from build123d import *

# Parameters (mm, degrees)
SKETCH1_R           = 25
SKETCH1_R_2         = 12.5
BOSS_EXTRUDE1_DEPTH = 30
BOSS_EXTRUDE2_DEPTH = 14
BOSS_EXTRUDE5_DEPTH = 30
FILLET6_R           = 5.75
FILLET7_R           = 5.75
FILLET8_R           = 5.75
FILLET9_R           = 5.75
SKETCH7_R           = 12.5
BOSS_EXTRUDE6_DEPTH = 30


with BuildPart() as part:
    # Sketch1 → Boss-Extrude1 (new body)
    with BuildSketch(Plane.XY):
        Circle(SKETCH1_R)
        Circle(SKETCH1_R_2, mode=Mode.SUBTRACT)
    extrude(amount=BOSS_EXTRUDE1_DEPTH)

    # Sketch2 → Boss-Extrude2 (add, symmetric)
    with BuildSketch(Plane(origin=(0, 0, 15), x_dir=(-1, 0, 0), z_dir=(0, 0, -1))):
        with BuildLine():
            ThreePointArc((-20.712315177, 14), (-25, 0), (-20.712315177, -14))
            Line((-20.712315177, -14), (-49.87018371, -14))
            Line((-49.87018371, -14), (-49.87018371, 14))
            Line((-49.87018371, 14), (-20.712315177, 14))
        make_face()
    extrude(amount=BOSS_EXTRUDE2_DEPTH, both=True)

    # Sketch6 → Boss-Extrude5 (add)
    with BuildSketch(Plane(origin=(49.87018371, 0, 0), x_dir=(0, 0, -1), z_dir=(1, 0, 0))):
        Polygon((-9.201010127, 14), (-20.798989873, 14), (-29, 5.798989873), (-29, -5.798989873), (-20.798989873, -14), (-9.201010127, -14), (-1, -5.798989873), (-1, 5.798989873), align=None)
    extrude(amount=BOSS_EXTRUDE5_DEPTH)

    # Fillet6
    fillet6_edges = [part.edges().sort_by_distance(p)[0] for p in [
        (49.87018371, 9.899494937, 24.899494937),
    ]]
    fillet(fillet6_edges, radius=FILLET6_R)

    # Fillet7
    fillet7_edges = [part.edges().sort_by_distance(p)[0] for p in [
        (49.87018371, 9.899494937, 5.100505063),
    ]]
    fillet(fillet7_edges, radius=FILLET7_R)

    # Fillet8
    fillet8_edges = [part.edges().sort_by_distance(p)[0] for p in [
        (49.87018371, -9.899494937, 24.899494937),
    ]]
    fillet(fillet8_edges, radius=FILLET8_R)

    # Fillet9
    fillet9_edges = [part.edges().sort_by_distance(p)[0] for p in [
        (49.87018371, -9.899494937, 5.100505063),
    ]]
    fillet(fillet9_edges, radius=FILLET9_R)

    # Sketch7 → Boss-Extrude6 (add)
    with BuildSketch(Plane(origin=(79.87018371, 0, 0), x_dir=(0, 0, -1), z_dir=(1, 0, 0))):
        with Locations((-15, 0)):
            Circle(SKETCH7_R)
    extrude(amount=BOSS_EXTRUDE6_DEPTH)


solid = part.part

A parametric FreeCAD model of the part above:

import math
import FreeCAD as App
import Part
import Sketcher

V = App.Vector
Q = App.Units.Quantity


def edges_at(feature, points):
    """Names of the edges that pass closest to the given points."""
    edges = feature.Shape.Edges
    near = lambda p: min(range(len(edges)), key=lambda i: edges[i].distToShape(Part.Vertex(*p))[0])
    return sorted({f"Edge{near(p) + 1}" for p in points})

doc = App.newDocument("Part")
params = doc.addObject("Spreadsheet::Sheet", "Params")
for row, (alias, value) in enumerate([
    ("sketch1_diameter", "50 mm"),
    ("sketch1_diameter2", "25 mm"),
    ("pad1_length", "30 mm"),
    ("sketch2_radius", "25 mm"),
    ("sketch2_height", "28 mm"),
    ("pad2_length", "28 mm"),
    ("pad3_length", "30 mm"),
    ("fillet_radius", "5.75 mm"),
    ("fillet2_radius", "5.75 mm"),
    ("fillet3_radius", "5.75 mm"),
    ("fillet4_radius", "5.75 mm"),
    ("sketch4_diameter", "25 mm"),
    ("pad4_length", "30 mm"),
], start=1):
    params.set(f"A{row}", alias)
    params.set(f"B{row}", "=" + value)
    params.setAlias(f"B{row}", alias)

body = doc.addObject("PartDesign::Body", "Body")

# Sketch on XY plane
sketch1 = body.newObject("Sketcher::SketchObject", "Sketch")
sketch1.AttachmentSupport = (doc.getObject("XY_Plane"), [""])
sketch1.MapMode = "FlatFace"
sketch1.addGeometry([
    Part.Circle(V(0, 0, 0), V(0, 0, 1), 25),
    Part.Circle(V(0, 0, 0), V(0, 0, 1), 12),
], False)
sketch1.addConstraint([
    Sketcher.Constraint("Coincident", 0, 3, -1, 1),
    Sketcher.Constraint("Coincident", 1, 3, -1, 1),
    Sketcher.Constraint("Diameter", 0, Q("50 mm")),
    Sketcher.Constraint("Diameter", 1, Q("25 mm")),
])
sketch1.setExpression("Constraints[2]", "Params.sketch1_diameter")
sketch1.setExpression("Constraints[3]", "Params.sketch1_diameter2")
pad1 = body.newObject("PartDesign::Pad", "Pad")
pad1.Profile = sketch1
pad1.setExpression("Length", "Params.pad1_length")

# Sketch on XY plane
sketch2 = body.newObject("Sketcher::SketchObject", "Sketch001")
sketch2.AttachmentSupport = (doc.getObject("XY_Plane"), [""])
sketch2.MapMode = "FlatFace"
sketch2.AttachmentOffset = App.Placement(V(0, 0, 15), App.Rotation())
sketch2.addGeometry([
    Part.ArcOfCircle(Part.Circle(V(0, 0, 0), V(0, 0, 1), 25), math.radians(-34), math.radians(34)),
    Part.LineSegment(V(21, 14, 0), V(50, 14, 0)),
    Part.LineSegment(V(50, 14, 0), V(50, -14, 0)),
    Part.LineSegment(V(50, -14, 0), V(21, -14, 0)),
], False)
sketch2.addConstraint([
    Sketcher.Constraint("Coincident", 0, 2, 1, 1),
    Sketcher.Constraint("Coincident", 1, 2, 2, 1),
    Sketcher.Constraint("Coincident", 2, 2, 3, 1),
    Sketcher.Constraint("Coincident", 3, 2, 0, 1),
    Sketcher.Constraint("Horizontal", 1),
    Sketcher.Constraint("Vertical", 2),
    Sketcher.Constraint("Horizontal", 3),
    Sketcher.Constraint("Coincident", 0, 3, -1, 1),
    Sketcher.Constraint("Vertical", 0, 2, 3, 2),
    Sketcher.Constraint("Radius", 0, Q("25 mm")),
    Sketcher.Constraint("DistanceY", 2, 2, 2, 1, Q("28 mm")),
    Sketcher.Constraint("DistanceX", 1, 1, 1, 2, Q("29.157869 mm")),
])
sketch2.setExpression("Constraints[9]", "Params.sketch2_radius")
sketch2.setExpression("Constraints[10]", "Params.sketch2_height")
pad2 = body.newObject("PartDesign::Pad", "Pad001")
pad2.Profile = sketch2
pad2.setExpression("Length", "Params.pad2_length")
pad2.Midplane = True

# Sketch on YZ plane
sketch3 = body.newObject("Sketcher::SketchObject", "Sketch002")
sketch3.AttachmentSupport = (doc.getObject("YZ_Plane"), [""])
sketch3.MapMode = "FlatFace"
sketch3.AttachmentOffset = App.Placement(V(0, 0, 49.870184), App.Rotation())
sketch3.addGeometry([
    Part.LineSegment(V(14, 9, 0), V(14, 21, 0)),  # 0
    Part.LineSegment(V(14, 21, 0), V(6, 29, 0)),  # 1
    Part.LineSegment(V(6, 29, 0), V(-6, 29, 0)),  # 2
    Part.LineSegment(V(-6, 29, 0), V(-14, 21, 0)),  # 3
    Part.LineSegment(V(-14, 21, 0), V(-14, 9, 0)),  # 4
    Part.LineSegment(V(-14, 9, 0), V(-6, 1, 0)),  # 5
    Part.LineSegment(V(-6, 1, 0), V(6, 1, 0)),  # 6
    Part.LineSegment(V(6, 1, 0), V(14, 9, 0)),  # 7
], False)
sketch3.addConstraint([
    Sketcher.Constraint("Coincident", 0, 2, 1, 1),
    Sketcher.Constraint("Coincident", 1, 2, 2, 1),
    Sketcher.Constraint("Coincident", 2, 2, 3, 1),
    Sketcher.Constraint("Coincident", 3, 2, 4, 1),
    Sketcher.Constraint("Coincident", 4, 2, 5, 1),
    Sketcher.Constraint("Coincident", 5, 2, 6, 1),
    Sketcher.Constraint("Coincident", 6, 2, 7, 1),
    Sketcher.Constraint("Coincident", 7, 2, 0, 1),
    Sketcher.Constraint("Vertical", 0),
    Sketcher.Constraint("Horizontal", 2),
    Sketcher.Constraint("Vertical", 4),
    Sketcher.Constraint("Horizontal", 6),
    Sketcher.Constraint("Symmetric", 0, 2, 3, 2, -2),
    Sketcher.Constraint("Perpendicular", 1, 3),
    Sketcher.Constraint("Perpendicular", 3, 5),
    Sketcher.Constraint("Perpendicular", 5, 7),
    Sketcher.Constraint("Horizontal", 4, 2, 7, 2),
    Sketcher.Constraint("Vertical", 2, 2, 5, 2),
    Sketcher.Constraint("Vertical", 1, 2, 6, 2),
    Sketcher.Constraint("Equal", 6, 0),
    Sketcher.Constraint("DistanceX", -1, 1, 0, 2, Q("14 mm")),
    Sketcher.Constraint("DistanceY", -1, 1, 1, 2, Q("29 mm")),
    Sketcher.Constraint("DistanceX", 2, 2, 2, 1, Q("11.59798 mm")),
])
pad3 = body.newObject("PartDesign::Pad", "Pad002")
pad3.Profile = sketch3
pad3.setExpression("Length", "Params.pad3_length")
doc.recompute()

fillet = body.newObject("PartDesign::Fillet", "Fillet")
fillet.Base = (pad3, edges_at(pad3, [(49.87, 9.899, 24.899)]))
fillet.setExpression("Radius", "Params.fillet_radius")
doc.recompute()

fillet2 = body.newObject("PartDesign::Fillet", "Fillet001")
fillet2.Base = (fillet, edges_at(fillet, [(49.87, 9.899, 5.101)]))
fillet2.setExpression("Radius", "Params.fillet2_radius")
doc.recompute()

fillet3 = body.newObject("PartDesign::Fillet", "Fillet002")
fillet3.Base = (fillet2, edges_at(fillet2, [(49.87, -9.899, 24.899)]))
fillet3.setExpression("Radius", "Params.fillet3_radius")
doc.recompute()

fillet4 = body.newObject("PartDesign::Fillet", "Fillet003")
fillet4.Base = (fillet3, edges_at(fillet3, [(49.87, -9.899, 5.101)]))
fillet4.setExpression("Radius", "Params.fillet4_radius")

# Sketch on YZ plane
sketch4 = body.newObject("Sketcher::SketchObject", "Sketch003")
sketch4.AttachmentSupport = (doc.getObject("YZ_Plane"), [""])
sketch4.MapMode = "FlatFace"
sketch4.AttachmentOffset = App.Placement(V(0, 0, 79.870184), App.Rotation())
sketch4.addGeometry(Part.Circle(V(0, 15, 0), V(0, 0, 1), 12), False)
sketch4.addConstraint([
    Sketcher.Constraint("PointOnObject", 0, 3, -2),
    Sketcher.Constraint("Diameter", 0, Q("25 mm")),
    Sketcher.Constraint("DistanceY", -1, 1, 0, 3, Q("15 mm")),
])
sketch4.setExpression("Constraints[1]", "Params.sketch4_diameter")
pad4 = body.newObject("PartDesign::Pad", "Pad003")
pad4.Profile = sketch4
pad4.setExpression("Length", "Params.pad4_length")

doc.recompute()
